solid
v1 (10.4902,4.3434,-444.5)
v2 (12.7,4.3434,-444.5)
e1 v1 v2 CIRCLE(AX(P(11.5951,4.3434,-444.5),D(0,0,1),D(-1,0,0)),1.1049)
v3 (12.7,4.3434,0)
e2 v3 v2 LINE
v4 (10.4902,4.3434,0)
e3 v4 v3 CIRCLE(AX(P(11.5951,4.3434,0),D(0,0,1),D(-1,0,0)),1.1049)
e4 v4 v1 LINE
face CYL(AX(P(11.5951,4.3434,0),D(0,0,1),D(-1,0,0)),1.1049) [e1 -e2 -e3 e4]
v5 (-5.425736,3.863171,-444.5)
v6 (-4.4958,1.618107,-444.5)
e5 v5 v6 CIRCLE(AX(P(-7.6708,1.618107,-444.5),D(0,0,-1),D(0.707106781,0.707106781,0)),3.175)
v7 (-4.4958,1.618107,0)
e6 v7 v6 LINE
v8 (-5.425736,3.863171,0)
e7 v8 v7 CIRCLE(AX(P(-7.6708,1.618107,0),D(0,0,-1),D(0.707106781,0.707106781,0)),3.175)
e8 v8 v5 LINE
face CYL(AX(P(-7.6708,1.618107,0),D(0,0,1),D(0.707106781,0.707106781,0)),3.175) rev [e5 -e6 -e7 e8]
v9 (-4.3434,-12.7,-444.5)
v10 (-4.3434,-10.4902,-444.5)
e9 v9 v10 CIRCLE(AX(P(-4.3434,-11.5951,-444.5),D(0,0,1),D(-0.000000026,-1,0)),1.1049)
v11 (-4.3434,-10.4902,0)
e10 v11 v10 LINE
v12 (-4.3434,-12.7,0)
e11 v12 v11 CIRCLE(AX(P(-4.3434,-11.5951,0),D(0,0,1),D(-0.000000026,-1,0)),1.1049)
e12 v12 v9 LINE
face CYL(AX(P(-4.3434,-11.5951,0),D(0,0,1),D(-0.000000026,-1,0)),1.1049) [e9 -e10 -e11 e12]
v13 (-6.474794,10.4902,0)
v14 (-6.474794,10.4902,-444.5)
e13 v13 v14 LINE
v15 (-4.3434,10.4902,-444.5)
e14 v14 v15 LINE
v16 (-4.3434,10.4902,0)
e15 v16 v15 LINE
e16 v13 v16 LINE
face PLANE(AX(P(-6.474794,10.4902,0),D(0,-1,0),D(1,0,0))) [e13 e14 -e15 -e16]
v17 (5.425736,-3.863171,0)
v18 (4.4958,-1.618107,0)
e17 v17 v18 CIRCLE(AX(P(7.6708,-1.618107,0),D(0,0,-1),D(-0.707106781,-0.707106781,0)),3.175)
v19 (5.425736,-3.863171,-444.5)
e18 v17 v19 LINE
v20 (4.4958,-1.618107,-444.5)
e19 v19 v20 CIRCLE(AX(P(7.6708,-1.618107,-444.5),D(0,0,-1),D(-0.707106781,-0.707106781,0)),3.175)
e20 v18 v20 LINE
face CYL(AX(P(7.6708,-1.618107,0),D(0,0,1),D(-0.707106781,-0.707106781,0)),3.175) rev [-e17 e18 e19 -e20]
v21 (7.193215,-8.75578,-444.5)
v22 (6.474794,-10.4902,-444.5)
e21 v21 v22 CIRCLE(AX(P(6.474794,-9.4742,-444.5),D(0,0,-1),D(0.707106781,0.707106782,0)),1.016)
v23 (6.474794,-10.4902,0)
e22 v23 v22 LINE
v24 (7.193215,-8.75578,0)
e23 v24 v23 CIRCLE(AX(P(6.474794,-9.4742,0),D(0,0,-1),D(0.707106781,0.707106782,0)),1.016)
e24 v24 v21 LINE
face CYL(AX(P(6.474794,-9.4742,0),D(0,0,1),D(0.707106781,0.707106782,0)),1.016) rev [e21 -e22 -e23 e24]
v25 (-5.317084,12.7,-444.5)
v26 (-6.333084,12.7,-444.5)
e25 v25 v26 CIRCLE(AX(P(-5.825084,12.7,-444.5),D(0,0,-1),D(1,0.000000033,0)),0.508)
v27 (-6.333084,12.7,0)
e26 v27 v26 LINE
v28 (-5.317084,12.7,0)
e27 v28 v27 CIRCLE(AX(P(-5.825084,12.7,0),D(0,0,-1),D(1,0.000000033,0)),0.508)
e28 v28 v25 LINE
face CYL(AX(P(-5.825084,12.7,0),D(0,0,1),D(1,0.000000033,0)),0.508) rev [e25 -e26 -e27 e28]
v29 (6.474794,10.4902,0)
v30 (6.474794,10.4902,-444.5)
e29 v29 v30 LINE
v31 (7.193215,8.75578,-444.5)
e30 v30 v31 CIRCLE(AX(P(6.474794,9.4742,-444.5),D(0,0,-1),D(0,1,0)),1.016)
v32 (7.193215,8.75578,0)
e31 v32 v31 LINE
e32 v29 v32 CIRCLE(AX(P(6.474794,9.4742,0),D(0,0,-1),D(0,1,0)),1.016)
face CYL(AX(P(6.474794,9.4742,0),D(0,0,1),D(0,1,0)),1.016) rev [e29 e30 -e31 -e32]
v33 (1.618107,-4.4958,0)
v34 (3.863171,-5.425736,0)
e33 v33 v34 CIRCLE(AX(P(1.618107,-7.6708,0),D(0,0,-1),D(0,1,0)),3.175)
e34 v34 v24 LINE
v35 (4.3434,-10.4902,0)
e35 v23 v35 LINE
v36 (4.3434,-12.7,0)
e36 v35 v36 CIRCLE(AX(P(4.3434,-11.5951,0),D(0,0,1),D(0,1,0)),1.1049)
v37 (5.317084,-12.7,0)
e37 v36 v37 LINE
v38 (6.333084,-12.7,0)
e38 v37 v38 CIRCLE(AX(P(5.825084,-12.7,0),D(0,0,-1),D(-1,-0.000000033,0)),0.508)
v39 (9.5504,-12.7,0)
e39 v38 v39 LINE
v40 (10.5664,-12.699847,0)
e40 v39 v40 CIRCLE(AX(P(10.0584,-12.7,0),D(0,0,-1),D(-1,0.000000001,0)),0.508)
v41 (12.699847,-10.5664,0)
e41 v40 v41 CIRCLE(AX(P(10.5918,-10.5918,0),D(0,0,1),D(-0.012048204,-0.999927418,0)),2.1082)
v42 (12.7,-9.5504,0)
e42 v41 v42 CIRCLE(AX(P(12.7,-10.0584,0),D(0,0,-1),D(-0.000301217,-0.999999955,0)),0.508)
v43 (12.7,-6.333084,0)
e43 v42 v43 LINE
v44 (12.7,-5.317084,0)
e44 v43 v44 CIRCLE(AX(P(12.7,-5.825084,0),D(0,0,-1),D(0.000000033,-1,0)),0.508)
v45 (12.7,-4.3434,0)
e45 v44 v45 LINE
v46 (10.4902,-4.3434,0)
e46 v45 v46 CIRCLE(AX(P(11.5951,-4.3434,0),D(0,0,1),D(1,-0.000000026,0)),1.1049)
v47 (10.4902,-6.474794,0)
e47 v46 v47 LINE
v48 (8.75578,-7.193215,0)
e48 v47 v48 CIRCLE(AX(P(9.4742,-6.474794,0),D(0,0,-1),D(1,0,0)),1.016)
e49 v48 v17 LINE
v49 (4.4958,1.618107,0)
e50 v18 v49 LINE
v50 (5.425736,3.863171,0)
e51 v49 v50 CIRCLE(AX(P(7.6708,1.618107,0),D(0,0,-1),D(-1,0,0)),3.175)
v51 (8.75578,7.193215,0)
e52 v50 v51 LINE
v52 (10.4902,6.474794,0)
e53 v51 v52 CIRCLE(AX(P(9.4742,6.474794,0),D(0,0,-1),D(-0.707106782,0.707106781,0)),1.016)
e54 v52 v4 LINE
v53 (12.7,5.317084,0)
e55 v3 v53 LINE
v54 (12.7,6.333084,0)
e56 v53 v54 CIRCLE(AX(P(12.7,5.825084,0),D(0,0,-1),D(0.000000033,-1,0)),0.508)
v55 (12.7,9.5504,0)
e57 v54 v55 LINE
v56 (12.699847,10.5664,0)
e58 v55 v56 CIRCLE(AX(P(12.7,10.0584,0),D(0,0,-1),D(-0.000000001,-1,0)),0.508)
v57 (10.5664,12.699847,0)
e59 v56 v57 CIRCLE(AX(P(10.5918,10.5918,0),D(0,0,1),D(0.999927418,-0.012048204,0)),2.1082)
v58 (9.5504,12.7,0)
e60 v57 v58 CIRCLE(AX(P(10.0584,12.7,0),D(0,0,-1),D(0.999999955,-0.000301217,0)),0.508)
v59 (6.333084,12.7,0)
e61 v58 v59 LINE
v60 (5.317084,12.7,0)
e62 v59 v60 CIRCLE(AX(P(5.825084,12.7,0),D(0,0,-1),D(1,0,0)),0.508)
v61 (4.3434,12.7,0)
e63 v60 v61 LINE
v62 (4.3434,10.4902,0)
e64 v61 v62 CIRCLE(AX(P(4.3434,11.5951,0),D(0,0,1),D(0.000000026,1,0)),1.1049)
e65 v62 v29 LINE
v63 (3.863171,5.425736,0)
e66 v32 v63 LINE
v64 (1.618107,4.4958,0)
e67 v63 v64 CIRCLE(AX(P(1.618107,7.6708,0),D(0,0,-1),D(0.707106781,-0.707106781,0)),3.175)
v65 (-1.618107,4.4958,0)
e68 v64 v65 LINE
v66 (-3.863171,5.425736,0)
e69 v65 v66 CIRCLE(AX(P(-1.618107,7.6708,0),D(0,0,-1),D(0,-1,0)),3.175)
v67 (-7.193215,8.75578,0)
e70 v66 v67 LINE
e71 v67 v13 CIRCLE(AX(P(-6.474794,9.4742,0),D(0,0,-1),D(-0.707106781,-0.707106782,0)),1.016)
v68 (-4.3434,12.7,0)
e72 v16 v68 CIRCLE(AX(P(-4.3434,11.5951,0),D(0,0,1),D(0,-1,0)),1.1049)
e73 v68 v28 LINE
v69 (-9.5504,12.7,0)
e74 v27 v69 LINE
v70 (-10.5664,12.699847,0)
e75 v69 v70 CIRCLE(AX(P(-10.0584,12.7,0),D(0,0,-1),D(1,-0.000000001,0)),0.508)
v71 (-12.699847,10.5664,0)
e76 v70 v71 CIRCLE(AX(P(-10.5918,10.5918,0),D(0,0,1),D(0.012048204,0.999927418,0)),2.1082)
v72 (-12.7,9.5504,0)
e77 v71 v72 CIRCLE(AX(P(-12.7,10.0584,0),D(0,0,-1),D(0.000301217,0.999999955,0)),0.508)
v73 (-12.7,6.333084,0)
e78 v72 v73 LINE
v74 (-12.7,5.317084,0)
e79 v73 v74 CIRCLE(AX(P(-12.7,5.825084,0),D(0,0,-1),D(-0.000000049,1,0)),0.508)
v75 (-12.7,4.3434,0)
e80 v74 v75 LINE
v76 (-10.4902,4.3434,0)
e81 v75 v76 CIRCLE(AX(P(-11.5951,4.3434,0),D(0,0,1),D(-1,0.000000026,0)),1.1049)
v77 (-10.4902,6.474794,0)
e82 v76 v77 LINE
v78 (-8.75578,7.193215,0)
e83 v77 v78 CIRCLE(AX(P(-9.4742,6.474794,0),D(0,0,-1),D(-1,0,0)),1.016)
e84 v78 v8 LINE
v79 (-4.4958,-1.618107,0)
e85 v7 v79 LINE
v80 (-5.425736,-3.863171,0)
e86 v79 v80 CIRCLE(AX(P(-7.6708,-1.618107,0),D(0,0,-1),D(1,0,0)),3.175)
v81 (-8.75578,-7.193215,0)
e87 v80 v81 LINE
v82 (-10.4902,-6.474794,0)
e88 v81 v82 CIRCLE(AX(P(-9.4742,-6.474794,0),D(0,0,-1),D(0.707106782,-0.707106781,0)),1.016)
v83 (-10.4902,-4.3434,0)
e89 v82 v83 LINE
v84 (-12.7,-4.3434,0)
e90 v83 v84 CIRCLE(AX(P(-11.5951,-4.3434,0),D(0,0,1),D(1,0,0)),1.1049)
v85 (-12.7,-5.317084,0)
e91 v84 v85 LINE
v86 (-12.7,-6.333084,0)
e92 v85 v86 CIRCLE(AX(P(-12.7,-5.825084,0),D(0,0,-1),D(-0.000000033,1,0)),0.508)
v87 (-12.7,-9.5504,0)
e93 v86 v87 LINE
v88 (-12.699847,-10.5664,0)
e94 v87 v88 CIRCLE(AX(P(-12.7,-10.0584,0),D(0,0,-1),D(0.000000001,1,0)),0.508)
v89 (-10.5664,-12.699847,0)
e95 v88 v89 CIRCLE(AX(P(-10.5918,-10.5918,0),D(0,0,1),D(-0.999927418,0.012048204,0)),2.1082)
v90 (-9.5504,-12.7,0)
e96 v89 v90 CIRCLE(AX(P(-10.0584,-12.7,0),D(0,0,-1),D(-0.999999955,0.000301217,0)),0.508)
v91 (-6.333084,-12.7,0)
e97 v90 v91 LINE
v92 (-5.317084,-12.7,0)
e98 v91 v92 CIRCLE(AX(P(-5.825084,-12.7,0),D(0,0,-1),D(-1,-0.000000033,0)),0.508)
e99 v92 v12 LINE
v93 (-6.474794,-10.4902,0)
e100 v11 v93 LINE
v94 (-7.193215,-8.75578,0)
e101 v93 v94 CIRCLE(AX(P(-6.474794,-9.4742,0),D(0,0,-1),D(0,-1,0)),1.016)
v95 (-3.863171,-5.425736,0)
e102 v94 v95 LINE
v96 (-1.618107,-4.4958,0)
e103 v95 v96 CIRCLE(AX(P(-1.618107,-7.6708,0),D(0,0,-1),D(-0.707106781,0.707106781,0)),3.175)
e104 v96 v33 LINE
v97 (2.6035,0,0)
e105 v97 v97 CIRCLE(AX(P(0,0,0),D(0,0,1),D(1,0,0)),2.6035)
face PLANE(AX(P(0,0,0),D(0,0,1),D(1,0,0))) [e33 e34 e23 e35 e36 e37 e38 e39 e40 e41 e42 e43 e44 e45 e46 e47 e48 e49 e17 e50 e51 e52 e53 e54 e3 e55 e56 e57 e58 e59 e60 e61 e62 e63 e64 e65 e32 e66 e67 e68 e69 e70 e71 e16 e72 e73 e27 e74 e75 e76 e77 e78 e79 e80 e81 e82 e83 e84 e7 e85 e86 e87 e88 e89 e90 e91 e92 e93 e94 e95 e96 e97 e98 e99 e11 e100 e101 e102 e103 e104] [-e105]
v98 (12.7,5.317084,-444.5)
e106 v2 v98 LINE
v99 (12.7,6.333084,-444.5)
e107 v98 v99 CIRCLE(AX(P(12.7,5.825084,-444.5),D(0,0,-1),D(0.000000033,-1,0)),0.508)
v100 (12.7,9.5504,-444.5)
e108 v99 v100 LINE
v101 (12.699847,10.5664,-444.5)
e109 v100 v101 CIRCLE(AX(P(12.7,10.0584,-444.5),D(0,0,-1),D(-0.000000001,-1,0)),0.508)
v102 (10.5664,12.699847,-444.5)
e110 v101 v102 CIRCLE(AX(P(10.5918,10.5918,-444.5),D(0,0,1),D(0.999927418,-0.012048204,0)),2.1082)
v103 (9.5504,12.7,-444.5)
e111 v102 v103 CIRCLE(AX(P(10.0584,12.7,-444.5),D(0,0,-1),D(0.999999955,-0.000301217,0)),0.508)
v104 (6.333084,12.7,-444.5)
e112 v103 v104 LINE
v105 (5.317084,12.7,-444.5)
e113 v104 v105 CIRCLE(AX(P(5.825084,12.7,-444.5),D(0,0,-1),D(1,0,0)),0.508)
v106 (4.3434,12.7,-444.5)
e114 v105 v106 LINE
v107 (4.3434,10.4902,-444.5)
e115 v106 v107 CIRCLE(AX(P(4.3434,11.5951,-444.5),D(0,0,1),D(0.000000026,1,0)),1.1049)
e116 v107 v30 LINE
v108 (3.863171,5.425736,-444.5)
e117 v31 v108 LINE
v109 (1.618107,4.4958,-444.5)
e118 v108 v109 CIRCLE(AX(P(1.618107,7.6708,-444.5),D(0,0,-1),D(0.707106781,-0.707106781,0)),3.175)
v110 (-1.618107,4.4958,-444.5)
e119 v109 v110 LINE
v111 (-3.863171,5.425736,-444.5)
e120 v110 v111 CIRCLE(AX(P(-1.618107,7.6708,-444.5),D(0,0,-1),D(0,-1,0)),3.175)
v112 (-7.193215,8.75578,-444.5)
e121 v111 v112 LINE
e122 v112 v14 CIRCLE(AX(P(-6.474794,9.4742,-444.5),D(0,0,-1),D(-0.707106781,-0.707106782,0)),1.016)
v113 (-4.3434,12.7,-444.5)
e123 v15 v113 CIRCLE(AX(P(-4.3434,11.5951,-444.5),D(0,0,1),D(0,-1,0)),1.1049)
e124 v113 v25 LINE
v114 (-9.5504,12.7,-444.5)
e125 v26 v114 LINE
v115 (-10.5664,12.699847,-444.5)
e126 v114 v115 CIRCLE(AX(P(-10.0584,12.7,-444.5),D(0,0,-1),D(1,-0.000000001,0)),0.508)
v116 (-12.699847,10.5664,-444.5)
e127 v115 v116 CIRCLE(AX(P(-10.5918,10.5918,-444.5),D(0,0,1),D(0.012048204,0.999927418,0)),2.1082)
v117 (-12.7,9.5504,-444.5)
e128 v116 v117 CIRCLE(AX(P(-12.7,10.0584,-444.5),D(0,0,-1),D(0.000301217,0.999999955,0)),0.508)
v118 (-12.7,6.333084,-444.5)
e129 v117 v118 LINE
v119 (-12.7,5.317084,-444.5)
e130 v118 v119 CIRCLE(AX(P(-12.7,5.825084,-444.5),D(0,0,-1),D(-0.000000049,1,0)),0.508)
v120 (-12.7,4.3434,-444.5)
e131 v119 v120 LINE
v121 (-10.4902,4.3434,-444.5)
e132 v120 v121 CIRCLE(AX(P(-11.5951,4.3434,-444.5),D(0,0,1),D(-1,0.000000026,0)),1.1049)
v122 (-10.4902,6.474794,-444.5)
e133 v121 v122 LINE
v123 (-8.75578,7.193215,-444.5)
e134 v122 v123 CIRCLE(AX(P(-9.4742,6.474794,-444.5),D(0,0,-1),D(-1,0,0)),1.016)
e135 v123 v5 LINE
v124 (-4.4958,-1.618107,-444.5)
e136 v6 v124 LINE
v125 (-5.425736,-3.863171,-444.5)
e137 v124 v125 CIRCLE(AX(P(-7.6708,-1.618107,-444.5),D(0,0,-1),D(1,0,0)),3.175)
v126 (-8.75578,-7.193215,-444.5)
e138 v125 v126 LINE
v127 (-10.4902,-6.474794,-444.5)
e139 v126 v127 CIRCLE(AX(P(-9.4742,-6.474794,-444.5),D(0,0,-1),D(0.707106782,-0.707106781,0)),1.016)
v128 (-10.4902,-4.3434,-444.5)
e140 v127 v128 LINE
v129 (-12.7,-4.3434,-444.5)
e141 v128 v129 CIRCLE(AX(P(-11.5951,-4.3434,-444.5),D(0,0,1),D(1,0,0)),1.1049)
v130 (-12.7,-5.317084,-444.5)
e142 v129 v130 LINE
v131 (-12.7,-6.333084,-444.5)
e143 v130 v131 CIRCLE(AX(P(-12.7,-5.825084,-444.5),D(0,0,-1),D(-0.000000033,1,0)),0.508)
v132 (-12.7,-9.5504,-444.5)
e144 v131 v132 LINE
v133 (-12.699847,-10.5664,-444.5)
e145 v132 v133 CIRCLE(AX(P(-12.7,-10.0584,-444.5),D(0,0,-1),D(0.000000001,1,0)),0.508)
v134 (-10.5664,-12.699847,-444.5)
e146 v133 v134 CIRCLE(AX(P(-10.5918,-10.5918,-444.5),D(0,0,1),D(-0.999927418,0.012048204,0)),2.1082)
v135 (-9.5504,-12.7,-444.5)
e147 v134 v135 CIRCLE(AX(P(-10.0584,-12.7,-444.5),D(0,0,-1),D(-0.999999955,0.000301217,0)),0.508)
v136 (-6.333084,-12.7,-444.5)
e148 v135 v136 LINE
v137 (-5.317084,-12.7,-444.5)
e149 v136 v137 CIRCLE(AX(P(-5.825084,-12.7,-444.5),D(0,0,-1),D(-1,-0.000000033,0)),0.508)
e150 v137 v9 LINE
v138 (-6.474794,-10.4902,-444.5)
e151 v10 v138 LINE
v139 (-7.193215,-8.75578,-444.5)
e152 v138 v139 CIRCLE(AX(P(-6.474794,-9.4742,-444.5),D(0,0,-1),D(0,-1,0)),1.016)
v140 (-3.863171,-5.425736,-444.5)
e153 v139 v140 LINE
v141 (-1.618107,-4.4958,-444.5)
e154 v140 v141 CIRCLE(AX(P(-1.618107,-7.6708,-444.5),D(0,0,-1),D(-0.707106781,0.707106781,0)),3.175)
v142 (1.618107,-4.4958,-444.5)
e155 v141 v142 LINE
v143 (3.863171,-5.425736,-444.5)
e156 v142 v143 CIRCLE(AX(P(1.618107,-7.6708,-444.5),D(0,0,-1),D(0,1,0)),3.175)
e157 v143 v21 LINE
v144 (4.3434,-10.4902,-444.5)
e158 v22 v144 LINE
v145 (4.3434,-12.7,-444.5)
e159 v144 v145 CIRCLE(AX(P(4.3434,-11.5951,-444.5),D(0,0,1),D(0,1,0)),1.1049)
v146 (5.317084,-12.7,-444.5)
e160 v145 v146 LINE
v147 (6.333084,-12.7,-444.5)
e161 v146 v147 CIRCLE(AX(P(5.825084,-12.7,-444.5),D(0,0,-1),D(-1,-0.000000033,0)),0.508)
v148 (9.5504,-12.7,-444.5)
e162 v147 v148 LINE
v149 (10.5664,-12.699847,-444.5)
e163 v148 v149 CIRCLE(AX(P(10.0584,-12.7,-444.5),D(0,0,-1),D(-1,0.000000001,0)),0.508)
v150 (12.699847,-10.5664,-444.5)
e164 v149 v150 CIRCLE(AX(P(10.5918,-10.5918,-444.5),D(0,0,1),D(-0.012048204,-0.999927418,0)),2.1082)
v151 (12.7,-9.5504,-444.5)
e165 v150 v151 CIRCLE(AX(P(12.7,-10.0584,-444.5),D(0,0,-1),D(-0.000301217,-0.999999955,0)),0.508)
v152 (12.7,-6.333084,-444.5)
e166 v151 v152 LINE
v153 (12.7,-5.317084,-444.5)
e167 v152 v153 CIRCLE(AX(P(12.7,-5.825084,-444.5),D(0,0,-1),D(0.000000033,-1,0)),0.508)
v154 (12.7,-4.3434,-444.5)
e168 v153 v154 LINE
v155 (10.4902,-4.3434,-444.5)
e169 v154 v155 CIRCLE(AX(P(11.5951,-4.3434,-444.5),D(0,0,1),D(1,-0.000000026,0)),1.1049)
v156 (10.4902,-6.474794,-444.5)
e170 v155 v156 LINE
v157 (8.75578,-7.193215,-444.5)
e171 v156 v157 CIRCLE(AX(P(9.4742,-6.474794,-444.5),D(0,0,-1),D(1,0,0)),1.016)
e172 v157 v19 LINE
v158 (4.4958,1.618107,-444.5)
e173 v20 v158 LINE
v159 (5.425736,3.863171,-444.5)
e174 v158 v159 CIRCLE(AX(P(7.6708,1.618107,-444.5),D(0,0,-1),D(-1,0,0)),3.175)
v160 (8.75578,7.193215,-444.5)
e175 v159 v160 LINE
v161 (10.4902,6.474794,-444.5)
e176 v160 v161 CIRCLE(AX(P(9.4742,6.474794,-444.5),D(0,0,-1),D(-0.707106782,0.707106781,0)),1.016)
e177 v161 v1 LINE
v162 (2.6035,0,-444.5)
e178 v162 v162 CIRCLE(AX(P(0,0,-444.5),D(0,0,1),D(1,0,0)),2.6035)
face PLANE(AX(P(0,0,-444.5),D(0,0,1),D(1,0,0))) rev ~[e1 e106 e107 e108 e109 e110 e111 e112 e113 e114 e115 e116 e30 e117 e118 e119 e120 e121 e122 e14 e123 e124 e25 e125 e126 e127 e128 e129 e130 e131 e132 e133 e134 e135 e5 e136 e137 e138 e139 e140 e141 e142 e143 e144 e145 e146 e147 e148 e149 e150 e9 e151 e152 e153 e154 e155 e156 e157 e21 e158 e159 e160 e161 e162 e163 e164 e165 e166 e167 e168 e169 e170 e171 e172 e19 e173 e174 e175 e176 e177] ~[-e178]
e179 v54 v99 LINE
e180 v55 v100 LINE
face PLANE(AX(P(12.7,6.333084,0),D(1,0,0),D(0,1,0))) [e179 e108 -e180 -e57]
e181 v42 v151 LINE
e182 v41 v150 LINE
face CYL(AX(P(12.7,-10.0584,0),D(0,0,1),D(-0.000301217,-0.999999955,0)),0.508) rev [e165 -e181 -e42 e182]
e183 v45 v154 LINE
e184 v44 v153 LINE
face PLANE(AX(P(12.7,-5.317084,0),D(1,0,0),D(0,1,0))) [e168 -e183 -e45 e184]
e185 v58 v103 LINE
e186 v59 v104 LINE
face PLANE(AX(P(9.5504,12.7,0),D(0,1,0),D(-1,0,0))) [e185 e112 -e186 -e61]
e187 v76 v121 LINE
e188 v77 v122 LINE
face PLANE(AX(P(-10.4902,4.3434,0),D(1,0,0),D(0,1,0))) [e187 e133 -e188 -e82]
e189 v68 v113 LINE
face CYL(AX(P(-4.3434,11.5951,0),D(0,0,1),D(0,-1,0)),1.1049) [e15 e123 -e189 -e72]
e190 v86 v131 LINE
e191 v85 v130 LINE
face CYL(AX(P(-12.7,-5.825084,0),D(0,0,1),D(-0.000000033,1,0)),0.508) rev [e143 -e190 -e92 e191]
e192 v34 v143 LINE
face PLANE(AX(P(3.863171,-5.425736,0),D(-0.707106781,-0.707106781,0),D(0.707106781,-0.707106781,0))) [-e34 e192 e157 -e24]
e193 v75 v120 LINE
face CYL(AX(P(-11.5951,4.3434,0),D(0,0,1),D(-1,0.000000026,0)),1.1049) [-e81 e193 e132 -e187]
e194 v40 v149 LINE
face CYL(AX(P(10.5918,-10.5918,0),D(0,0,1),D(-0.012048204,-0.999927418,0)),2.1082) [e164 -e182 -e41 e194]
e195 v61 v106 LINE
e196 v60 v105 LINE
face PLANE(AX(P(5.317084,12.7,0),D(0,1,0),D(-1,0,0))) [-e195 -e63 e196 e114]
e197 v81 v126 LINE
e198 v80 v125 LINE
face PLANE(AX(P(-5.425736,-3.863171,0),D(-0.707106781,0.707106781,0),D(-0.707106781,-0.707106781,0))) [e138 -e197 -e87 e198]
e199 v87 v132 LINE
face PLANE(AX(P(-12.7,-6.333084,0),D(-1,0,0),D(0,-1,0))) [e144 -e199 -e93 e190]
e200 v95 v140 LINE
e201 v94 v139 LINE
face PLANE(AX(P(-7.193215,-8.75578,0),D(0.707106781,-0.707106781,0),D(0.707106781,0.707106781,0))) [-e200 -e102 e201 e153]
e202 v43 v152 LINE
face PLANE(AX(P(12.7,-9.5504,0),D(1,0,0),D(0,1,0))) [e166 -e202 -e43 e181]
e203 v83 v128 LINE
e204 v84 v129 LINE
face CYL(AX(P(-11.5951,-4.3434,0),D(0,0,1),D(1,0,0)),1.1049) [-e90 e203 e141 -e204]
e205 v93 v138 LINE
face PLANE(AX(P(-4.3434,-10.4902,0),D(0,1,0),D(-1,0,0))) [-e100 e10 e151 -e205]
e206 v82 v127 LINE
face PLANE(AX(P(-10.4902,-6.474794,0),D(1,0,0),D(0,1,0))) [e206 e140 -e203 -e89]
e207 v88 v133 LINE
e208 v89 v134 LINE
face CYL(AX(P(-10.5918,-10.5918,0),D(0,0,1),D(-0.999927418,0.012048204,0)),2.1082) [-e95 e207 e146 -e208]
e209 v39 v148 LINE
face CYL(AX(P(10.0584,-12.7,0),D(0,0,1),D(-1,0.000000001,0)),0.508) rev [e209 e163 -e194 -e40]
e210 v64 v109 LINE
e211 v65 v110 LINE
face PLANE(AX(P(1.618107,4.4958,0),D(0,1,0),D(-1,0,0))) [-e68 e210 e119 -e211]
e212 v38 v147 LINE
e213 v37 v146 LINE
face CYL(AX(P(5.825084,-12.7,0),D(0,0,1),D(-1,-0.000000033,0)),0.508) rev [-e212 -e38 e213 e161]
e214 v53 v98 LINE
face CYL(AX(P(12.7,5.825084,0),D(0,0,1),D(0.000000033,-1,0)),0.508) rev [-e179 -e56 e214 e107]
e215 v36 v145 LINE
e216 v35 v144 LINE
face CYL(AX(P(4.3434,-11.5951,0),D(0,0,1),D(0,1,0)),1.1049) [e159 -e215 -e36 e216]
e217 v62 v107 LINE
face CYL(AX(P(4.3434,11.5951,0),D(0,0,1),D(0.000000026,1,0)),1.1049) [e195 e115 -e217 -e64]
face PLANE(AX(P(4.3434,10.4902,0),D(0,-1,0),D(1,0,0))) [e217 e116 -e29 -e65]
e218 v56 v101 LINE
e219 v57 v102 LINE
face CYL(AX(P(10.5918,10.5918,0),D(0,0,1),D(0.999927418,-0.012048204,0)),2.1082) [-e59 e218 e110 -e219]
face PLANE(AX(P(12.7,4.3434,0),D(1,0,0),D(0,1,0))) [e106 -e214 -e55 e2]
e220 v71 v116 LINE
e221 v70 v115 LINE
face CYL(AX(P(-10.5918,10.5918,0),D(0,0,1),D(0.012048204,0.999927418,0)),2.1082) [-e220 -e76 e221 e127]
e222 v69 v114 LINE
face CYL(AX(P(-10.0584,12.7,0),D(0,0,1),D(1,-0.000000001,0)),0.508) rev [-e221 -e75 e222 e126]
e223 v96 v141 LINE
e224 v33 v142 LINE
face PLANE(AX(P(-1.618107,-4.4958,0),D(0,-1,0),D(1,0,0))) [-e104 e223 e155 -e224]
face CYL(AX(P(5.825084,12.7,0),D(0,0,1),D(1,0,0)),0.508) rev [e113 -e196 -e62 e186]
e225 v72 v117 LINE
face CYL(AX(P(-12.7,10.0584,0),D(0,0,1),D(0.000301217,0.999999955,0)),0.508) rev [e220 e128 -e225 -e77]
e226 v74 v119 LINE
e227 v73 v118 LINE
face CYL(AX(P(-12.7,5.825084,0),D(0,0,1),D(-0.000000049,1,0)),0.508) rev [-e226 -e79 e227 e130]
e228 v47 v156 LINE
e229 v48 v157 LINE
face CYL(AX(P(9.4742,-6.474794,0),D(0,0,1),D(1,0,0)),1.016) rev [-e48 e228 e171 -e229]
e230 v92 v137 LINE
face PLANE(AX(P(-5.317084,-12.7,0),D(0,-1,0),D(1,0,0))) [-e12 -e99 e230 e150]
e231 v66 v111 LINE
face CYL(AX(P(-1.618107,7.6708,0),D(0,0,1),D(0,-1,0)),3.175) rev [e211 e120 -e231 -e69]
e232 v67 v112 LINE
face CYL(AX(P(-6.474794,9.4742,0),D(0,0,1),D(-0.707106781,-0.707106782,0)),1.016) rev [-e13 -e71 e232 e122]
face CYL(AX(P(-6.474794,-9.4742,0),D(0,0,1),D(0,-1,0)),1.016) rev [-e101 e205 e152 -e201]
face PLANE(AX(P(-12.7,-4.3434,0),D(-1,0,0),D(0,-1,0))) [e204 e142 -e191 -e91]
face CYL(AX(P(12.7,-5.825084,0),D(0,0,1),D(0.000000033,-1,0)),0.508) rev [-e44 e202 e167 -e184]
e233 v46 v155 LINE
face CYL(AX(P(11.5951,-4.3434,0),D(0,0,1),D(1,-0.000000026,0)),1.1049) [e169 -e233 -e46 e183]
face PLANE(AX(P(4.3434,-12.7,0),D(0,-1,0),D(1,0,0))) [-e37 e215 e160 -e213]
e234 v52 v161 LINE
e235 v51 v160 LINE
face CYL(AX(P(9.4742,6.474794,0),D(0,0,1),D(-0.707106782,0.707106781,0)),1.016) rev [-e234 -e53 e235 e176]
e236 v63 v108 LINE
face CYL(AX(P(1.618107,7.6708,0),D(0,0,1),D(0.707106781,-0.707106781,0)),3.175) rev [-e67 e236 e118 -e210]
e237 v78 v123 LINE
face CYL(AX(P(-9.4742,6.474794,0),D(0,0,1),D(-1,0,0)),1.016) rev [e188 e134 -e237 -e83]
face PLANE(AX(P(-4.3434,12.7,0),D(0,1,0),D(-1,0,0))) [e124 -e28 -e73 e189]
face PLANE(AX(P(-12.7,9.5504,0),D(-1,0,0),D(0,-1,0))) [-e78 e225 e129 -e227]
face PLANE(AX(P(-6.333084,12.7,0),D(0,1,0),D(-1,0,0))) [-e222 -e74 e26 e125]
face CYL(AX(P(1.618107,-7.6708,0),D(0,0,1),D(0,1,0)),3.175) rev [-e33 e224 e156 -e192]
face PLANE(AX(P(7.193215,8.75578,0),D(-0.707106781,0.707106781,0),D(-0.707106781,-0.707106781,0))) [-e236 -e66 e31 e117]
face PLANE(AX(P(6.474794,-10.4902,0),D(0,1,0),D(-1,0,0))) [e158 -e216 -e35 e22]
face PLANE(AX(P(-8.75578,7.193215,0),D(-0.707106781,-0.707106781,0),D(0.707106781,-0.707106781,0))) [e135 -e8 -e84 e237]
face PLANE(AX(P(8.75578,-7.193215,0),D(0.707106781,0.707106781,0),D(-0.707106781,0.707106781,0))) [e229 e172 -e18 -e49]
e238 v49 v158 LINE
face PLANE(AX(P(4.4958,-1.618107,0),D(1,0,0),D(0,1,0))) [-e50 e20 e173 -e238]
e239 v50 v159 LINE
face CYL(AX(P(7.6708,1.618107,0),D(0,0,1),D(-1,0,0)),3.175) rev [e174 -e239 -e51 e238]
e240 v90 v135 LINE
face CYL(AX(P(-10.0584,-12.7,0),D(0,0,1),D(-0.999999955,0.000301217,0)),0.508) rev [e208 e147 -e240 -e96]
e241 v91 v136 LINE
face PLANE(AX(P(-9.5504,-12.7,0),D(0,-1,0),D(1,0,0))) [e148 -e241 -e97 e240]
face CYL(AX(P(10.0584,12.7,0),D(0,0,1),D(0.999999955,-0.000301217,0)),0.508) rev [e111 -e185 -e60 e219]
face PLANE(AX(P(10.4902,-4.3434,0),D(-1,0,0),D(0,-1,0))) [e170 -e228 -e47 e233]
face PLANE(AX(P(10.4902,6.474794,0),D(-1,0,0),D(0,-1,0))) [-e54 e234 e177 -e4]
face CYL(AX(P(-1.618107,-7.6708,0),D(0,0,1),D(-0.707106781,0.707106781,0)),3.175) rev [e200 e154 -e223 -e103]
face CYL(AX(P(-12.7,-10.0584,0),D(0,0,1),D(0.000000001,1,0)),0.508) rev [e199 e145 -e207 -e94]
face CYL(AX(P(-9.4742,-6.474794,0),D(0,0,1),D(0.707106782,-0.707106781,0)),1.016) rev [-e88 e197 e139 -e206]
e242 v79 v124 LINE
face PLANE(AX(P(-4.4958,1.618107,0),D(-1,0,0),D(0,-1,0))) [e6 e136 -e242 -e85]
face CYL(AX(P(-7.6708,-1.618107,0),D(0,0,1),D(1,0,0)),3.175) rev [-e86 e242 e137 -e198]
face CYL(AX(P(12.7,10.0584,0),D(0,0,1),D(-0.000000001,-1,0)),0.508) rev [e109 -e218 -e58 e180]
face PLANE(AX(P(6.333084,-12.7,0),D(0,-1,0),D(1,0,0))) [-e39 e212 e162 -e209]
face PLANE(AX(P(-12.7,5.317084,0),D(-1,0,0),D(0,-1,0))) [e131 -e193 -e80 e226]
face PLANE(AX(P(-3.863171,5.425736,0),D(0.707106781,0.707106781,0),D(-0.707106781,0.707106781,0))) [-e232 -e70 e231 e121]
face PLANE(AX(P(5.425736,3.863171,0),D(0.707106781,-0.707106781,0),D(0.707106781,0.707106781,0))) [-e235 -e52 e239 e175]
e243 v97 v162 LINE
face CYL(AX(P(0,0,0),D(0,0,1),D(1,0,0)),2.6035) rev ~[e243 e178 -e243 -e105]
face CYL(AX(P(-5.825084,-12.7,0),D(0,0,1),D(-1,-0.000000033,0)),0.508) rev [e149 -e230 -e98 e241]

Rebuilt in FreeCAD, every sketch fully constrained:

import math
import FreeCAD as App
import Part
import Sketcher
from FreeCAD import Vector
Q = App.Units.Quantity

doc = App.newDocument("Part")
params = doc.addObject("Spreadsheet::Sheet", "Params")
for row, (alias, value) in enumerate([
    ("sketch1_radius", "0.02 in"),
    ("sketch1_radius2", "0.04 in"),
    ("sketch1_diameter", "0.205 in"),
    ("sketch1_radius3", "0.125 in"),
    ("sketch1_radius4", "0.083 in"),
    ("pad1_length", "17.5 in"),
], start=1):
    params.set(f"A{row}", alias)
    params.set(f"B{row}", "=" + value)
    params.setAlias(f"B{row}", alias)

body = doc.addObject("PartDesign::Body", "Body")

# Sketch on XY plane
sketch1 = body.newObject("Sketcher::SketchObject", "Sketch")
sketch1.AttachmentSupport = (doc.getObject("XY_Plane"), [""])
sketch1.MapMode = "FlatFace"
sketch1.addGeometry([
    Part.LineSegment(Vector(-12.7, 9.6, 0), Vector(-12.7, 6.3, 0)),  # 0
    Part.ArcOfCircle(Part.Circle(Vector(-12.7, 5.8, 0), Vector(0, 0, 1), 0.5), math.radians(-90), math.radians(90)),  # 1
    Part.LineSegment(Vector(-12.7, 5.3, 0), Vector(-12.7, 4.3, 0)),  # 2
    Part.ArcOfCircle(Part.Circle(Vector(-11.6, 4.3, 0), Vector(0, 0, 1), 1.1), math.radians(180), math.radians(360)),  # 3
    Part.LineSegment(Vector(-10.5, 4.3, 0), Vector(-10.5, 6.5, 0)),  # 4
    Part.ArcOfCircle(Part.Circle(Vector(-9.5, 6.5, 0), Vector(0, 0, 1), 1), math.radians(45), math.radians(180)),  # 5
    Part.LineSegment(Vector(-8.8, 7.2, 0), Vector(-5.4, 3.9, 0)),  # 6
    Part.ArcOfCircle(Part.Circle(Vector(-7.7, 1.6, 0), Vector(0, 0, 1), 3.2), math.radians(0), math.radians(45)),  # 7
    Part.LineSegment(Vector(-4.5, 1.6, 0), Vector(-4.5, -1.6, 0)),  # 8
    Part.ArcOfCircle(Part.Circle(Vector(-7.7, -1.6, 0), Vector(0, 0, 1), 3.2), math.radians(-45), math.radians(0)),  # 9
    Part.LineSegment(Vector(-5.4, -3.9, 0), Vector(-8.8, -7.2, 0)),  # 10
    Part.ArcOfCircle(Part.Circle(Vector(-9.5, -6.5, 0), Vector(0, 0, 1), 1), math.radians(180), math.radians(315)),  # 11
    Part.LineSegment(Vector(-10.5, -6.5, 0), Vector(-10.5, -4.3, 0)),  # 12
    Part.ArcOfCircle(Part.Circle(Vector(-11.6, -4.3, 0), Vector(0, 0, 1), 1.1), math.radians(0), math.radians(180)),  # 13
    Part.LineSegment(Vector(-12.7, -4.3, 0), Vector(-12.7, -5.3, 0)),  # 14
    Part.ArcOfCircle(Part.Circle(Vector(-12.7, -5.8, 0), Vector(0, 0, 1), 0.5), math.radians(-90), math.radians(90)),  # 15
    Part.LineSegment(Vector(-12.7, -6.3, 0), Vector(-12.7, -9.6, 0)),  # 16
    Part.ArcOfCircle(Part.Circle(Vector(-12.7, -10.1, 0), Vector(0, 0, 1), 0.5), math.radians(-90), math.radians(90)),  # 17
    Part.ArcOfCircle(Part.Circle(Vector(-10.6, -10.6, 0), Vector(0, 0, 1), 2.1), math.radians(179), math.radians(271)),  # 18
    Part.ArcOfCircle(Part.Circle(Vector(-10.1, -12.7, 0), Vector(0, 0, 1), 0.5), math.radians(0), math.radians(180)),  # 19
    Part.LineSegment(Vector(-9.6, -12.7, 0), Vector(-6.3, -12.7, 0)),  # 20
    Part.ArcOfCircle(Part.Circle(Vector(-5.8, -12.7, 0), Vector(0, 0, 1), 0.5), math.radians(0), math.radians(180)),  # 21
    Part.LineSegment(Vector(-5.3, -12.7, 0), Vector(-4.3, -12.7, 0)),  # 22
    Part.ArcOfCircle(Part.Circle(Vector(-4.3, -11.6, 0), Vector(0, 0, 1), 1.1), math.radians(-90), math.radians(90)),  # 23
    Part.LineSegment(Vector(-4.3, -10.5, 0), Vector(-6.5, -10.5, 0)),  # 24
    Part.ArcOfCircle(Part.Circle(Vector(-6.5, -9.5, 0), Vector(0, 0, 1), 1), math.radians(135), math.radians(270)),  # 25
    Part.LineSegment(Vector(-7.2, -8.8, 0), Vector(-3.9, -5.4, 0)),  # 26
    Part.ArcOfCircle(Part.Circle(Vector(-1.6, -7.7, 0), Vector(0, 0, 1), 3.2), math.radians(90), math.radians(135)),  # 27
    Part.LineSegment(Vector(-1.6, -4.5, 0), Vector(1.6, -4.5, 0)),  # 28
    Part.ArcOfCircle(Part.Circle(Vector(1.6, -7.7, 0), Vector(0, 0, 1), 3.2), math.radians(45), math.radians(90)),  # 29
    Part.LineSegment(Vector(3.9, -5.4, 0), Vector(7.2, -8.8, 0)),  # 30
    Part.ArcOfCircle(Part.Circle(Vector(6.5, -9.5, 0), Vector(0, 0, 1), 1), math.radians(-90), math.radians(45)),  # 31
    Part.LineSegment(Vector(6.5, -10.5, 0), Vector(4.3, -10.5, 0)),  # 32
    Part.ArcOfCircle(Part.Circle(Vector(4.3, -11.6, 0), Vector(0, 0, 1), 1.1), math.radians(90), math.radians(270)),  # 33
    Part.LineSegment(Vector(4.3, -12.7, 0), Vector(5.3, -12.7, 0)),  # 34
    Part.ArcOfCircle(Part.Circle(Vector(5.8, -12.7, 0), Vector(0, 0, 1), 0.5), math.radians(0), math.radians(180)),  # 35
    Part.LineSegment(Vector(6.3, -12.7, 0), Vector(9.6, -12.7, 0)),  # 36
    Part.ArcOfCircle(Part.Circle(Vector(10.1, -12.7, 0), Vector(0, 0, 1), 0.5), math.radians(0), math.radians(180)),  # 37
    Part.ArcOfCircle(Part.Circle(Vector(10.6, -10.6, 0), Vector(0, 0, 1), 2.1), math.radians(-91), math.radians(1)),  # 38
    Part.ArcOfCircle(Part.Circle(Vector(12.7, -10.1, 0), Vector(0, 0, 1), 0.5), math.radians(90), math.radians(270)),  # 39
    Part.LineSegment(Vector(12.7, -9.6, 0), Vector(12.7, -6.3, 0)),  # 40
    Part.ArcOfCircle(Part.Circle(Vector(12.7, -5.8, 0), Vector(0, 0, 1), 0.5), math.radians(90), math.radians(270)),  # 41
    Part.LineSegment(Vector(12.7, -5.3, 0), Vector(12.7, -4.3, 0)),  # 42
    Part.ArcOfCircle(Part.Circle(Vector(11.6, -4.3, 0), Vector(0, 0, 1), 1.1), math.radians(0), math.radians(180)),  # 43
    Part.LineSegment(Vector(10.5, -4.3, 0), Vector(10.5, -6.5, 0)),  # 44
    Part.ArcOfCircle(Part.Circle(Vector(9.5, -6.5, 0), Vector(0, 0, 1), 1), math.radians(-135), math.radians(0)),  # 45
    Part.LineSegment(Vector(8.8, -7.2, 0), Vector(5.4, -3.9, 0)),  # 46
    Part.ArcOfCircle(Part.Circle(Vector(7.7, -1.6, 0), Vector(0, 0, 1), 3.2), math.radians(180), math.radians(225)),  # 47
    Part.LineSegment(Vector(4.5, -1.6, 0), Vector(4.5, 1.6, 0)),  # 48
    Part.ArcOfCircle(Part.Circle(Vector(7.7, 1.6, 0), Vector(0, 0, 1), 3.2), math.radians(135), math.radians(180)),  # 49
    Part.LineSegment(Vector(5.4, 3.9, 0), Vector(8.8, 7.2, 0)),  # 50
    Part.ArcOfCircle(Part.Circle(Vector(9.5, 6.5, 0), Vector(0, 0, 1), 1), math.radians(0), math.radians(135)),  # 51
    Part.LineSegment(Vector(10.5, 6.5, 0), Vector(10.5, 4.3, 0)),  # 52
    Part.ArcOfCircle(Part.Circle(Vector(11.6, 4.3, 0), Vector(0, 0, 1), 1.1), math.radians(180), math.radians(360)),  # 53
    Part.LineSegment(Vector(12.7, 4.3, 0), Vector(12.7, 5.3, 0)),  # 54
    Part.ArcOfCircle(Part.Circle(Vector(12.7, 5.8, 0), Vector(0, 0, 1), 0.5), math.radians(90), math.radians(270)),  # 55
    Part.LineSegment(Vector(12.7, 6.3, 0), Vector(12.7, 9.6, 0)),  # 56
    Part.ArcOfCircle(Part.Circle(Vector(12.7, 10.1, 0), Vector(0, 0, 1), 0.5), math.radians(90), math.radians(270)),  # 57
    Part.ArcOfCircle(Part.Circle(Vector(10.6, 10.6, 0), Vector(0, 0, 1), 2.1), math.radians(-1), math.radians(91)),  # 58
    Part.ArcOfCircle(Part.Circle(Vector(10.1, 12.7, 0), Vector(0, 0, 1), 0.5), math.radians(180), math.radians(360)),  # 59
    Part.LineSegment(Vector(9.6, 12.7, 0), Vector(6.3, 12.7, 0)),  # 60
    Part.ArcOfCircle(Part.Circle(Vector(5.8, 12.7, 0), Vector(0, 0, 1), 0.5), math.radians(180), math.radians(360)),  # 61
    Part.LineSegment(Vector(5.3, 12.7, 0), Vector(4.3, 12.7, 0)),  # 62
    Part.ArcOfCircle(Part.Circle(Vector(4.3, 11.6, 0), Vector(0, 0, 1), 1.1), math.radians(90), math.radians(270)),  # 63
    Part.LineSegment(Vector(4.3, 10.5, 0), Vector(6.5, 10.5, 0)),  # 64
    Part.ArcOfCircle(Part.Circle(Vector(6.5, 9.5, 0), Vector(0, 0, 1), 1), math.radians(-45), math.radians(90)),  # 65
    Part.LineSegment(Vector(7.2, 8.8, 0), Vector(3.9, 5.4, 0)),  # 66
    Part.ArcOfCircle(Part.Circle(Vector(1.6, 7.7, 0), Vector(0, 0, 1), 3.2), math.radians(-90), math.radians(-45)),  # 67
    Part.LineSegment(Vector(1.6, 4.5, 0), Vector(-1.6, 4.5, 0)),  # 68
    Part.ArcOfCircle(Part.Circle(Vector(-1.6, 7.7, 0), Vector(0, 0, 1), 3.2), math.radians(-135), math.radians(-90)),  # 69
    Part.LineSegment(Vector(-3.9, 5.4, 0), Vector(-7.2, 8.8, 0)),  # 70
    Part.ArcOfCircle(Part.Circle(Vector(-6.5, 9.5, 0), Vector(0, 0, 1), 1), math.radians(90), math.radians(225)),  # 71
    Part.LineSegment(Vector(-6.5, 10.5, 0), Vector(-4.3, 10.5, 0)),  # 72
    Part.ArcOfCircle(Part.Circle(Vector(-4.3, 11.6, 0), Vector(0, 0, 1), 1.1), math.radians(-90), math.radians(90)),  # 73
    Part.LineSegment(Vector(-4.3, 12.7, 0), Vector(-5.3, 12.7, 0)),  # 74
    Part.ArcOfCircle(Part.Circle(Vector(-5.8, 12.7, 0), Vector(0, 0, 1), 0.5), math.radians(180), math.radians(360)),  # 75
    Part.LineSegment(Vector(-6.3, 12.7, 0), Vector(-9.6, 12.7, 0)),  # 76
    Part.ArcOfCircle(Part.Circle(Vector(-10.1, 12.7, 0), Vector(0, 0, 1), 0.5), math.radians(-180), math.radians(0)),  # 77
    Part.ArcOfCircle(Part.Circle(Vector(-10.6, 10.6, 0), Vector(0, 0, 1), 2.1), math.radians(89), math.radians(181)),  # 78
    Part.ArcOfCircle(Part.Circle(Vector(-12.7, 10.1, 0), Vector(0, 0, 1), 0.5), math.radians(-90), math.radians(90)),  # 79
    Part.Circle(Vector(0, 0, 0), Vector(0, 0, 1), 2.6),  # 80
], False)
sketch1.addConstraint([
    Sketcher.Constraint("Coincident", 0, 2, 1, 2),
    Sketcher.Constraint("Coincident", 1, 1, 2, 1),
    Sketcher.Constraint("Tangent", 2, 2, 3, 1),
    Sketcher.Constraint("Tangent", 3, 2, 4, 1),
    Sketcher.Constraint("Tangent", 4, 2, 5, 2),
    Sketcher.Constraint("Tangent", 5, 1, 6, 1),
    Sketcher.Constraint("Tangent", 6, 2, 7, 2),
    Sketcher.Constraint("Tangent", 7, 1, 8, 1),
    Sketcher.Constraint("Tangent", 8, 2, 9, 2),
    Sketcher.Constraint("Tangent", 9, 1, 10, 1),
    Sketcher.Constraint("Tangent", 10, 2, 11, 2),
    Sketcher.Constraint("Tangent", 11, 1, 12, 1),
    Sketcher.Constraint("Tangent", 12, 2, 13, 1),
    Sketcher.Constraint("Tangent", 13, 2, 14, 1),
    Sketcher.Constraint("Coincident", 14, 2, 15, 2),
    Sketcher.Constraint("Coincident", 15, 1, 16, 1),
    Sketcher.Constraint("Coincident", 16, 2, 17, 2),
    Sketcher.Constraint("Coincident", 17, 1, 18, 1),
    Sketcher.Constraint("Coincident", 18, 2, 19, 2),
    Sketcher.Constraint("Coincident", 19, 1, 20, 1),
    Sketcher.Constraint("Coincident", 20, 2, 21, 2),
    Sketcher.Constraint("Coincident", 21, 1, 22, 1),
    Sketcher.Constraint("Tangent", 22, 2, 23, 1),
    Sketcher.Constraint("Tangent", 23, 2, 24, 1),
    Sketcher.Constraint("Tangent", 24, 2, 25, 2),
    Sketcher.Constraint("Tangent", 25, 1, 26, 1),
    Sketcher.Constraint("Tangent", 26, 2, 27, 2),
    Sketcher.Constraint("Tangent", 27, 1, 28, 1),
    Sketcher.Constraint("Tangent", 28, 2, 29, 2),
    Sketcher.Constraint("Tangent", 29, 1, 30, 1),
    Sketcher.Constraint("Tangent", 30, 2, 31, 2),
    Sketcher.Constraint("Tangent", 31, 1, 32, 1),
    Sketcher.Constraint("Tangent", 32, 2, 33, 1),
    Sketcher.Constraint("Tangent", 33, 2, 34, 1),
    Sketcher.Constraint("Coincident", 34, 2, 35, 2),
    Sketcher.Constraint("Coincident", 35, 1, 36, 1),
    Sketcher.Constraint("Coincident", 36, 2, 37, 2),
    Sketcher.Constraint("Coincident", 37, 1, 38, 1),
    Sketcher.Constraint("Coincident", 38, 2, 39, 2),
    Sketcher.Constraint("Coincident", 39, 1, 40, 1),
    Sketcher.Constraint("Coincident", 40, 2, 41, 2),
    Sketcher.Constraint("Coincident", 41, 1, 42, 1),
    Sketcher.Constraint("Tangent", 42, 2, 43, 1),
    Sketcher.Constraint("Tangent", 43, 2, 44, 1),
    Sketcher.Constraint("Tangent", 44, 2, 45, 2),
    Sketcher.Constraint("Tangent", 45, 1, 46, 1),
    Sketcher.Constraint("Tangent", 46, 2, 47, 2),
    Sketcher.Constraint("Tangent", 47, 1, 48, 1),
    Sketcher.Constraint("Tangent", 48, 2, 49, 2),
    Sketcher.Constraint("Tangent", 49, 1, 50, 1),
    Sketcher.Constraint("Tangent", 50, 2, 51, 2),
    Sketcher.Constraint("Tangent", 51, 1, 52, 1),
    Sketcher.Constraint("Tangent", 52, 2, 53, 1),
    Sketcher.Constraint("Tangent", 53, 2, 54, 1),
    Sketcher.Constraint("Coincident", 54, 2, 55, 2),
    Sketcher.Constraint("Coincident", 55, 1, 56, 1),
    Sketcher.Constraint("Coincident", 56, 2, 57, 2),
    Sketcher.Constraint("Coincident", 57, 1, 58, 1),
    Sketcher.Constraint("Coincident", 58, 2, 59, 2),
    Sketcher.Constraint("Coincident", 59, 1, 60, 1),
    Sketcher.Constraint("Coincident", 60, 2, 61, 2),
    Sketcher.Constraint("Coincident", 61, 1, 62, 1),
    Sketcher.Constraint("Tangent", 62, 2, 63, 1),
    Sketcher.Constraint("Tangent", 63, 2, 64, 1),
    Sketcher.Constraint("Tangent", 64, 2, 65, 2),
    Sketcher.Constraint("Tangent", 65, 1, 66, 1),
    Sketcher.Constraint("Tangent", 66, 2, 67, 2),
    Sketcher.Constraint("Tangent", 67, 1, 68, 1),
    Sketcher.Constraint("Tangent", 68, 2, 69, 2),
    Sketcher.Constraint("Tangent", 69, 1, 70, 1),
    Sketcher.Constraint("Tangent", 70, 2, 71, 2),
    Sketcher.Constraint("Tangent", 71, 1, 72, 1),
    Sketcher.Constraint("Tangent", 72, 2, 73, 1),
    Sketcher.Constraint("Tangent", 73, 2, 74, 1),
    Sketcher.Constraint("Coincident", 74, 2, 75, 2),
    Sketcher.Constraint("Coincident", 75, 1, 76, 1),
    Sketcher.Constraint("Coincident", 76, 2, 77, 2),
    Sketcher.Constraint("Coincident", 77, 1, 78, 1),
    Sketcher.Constraint("Coincident", 78, 2, 79, 2),
    Sketcher.Constraint("Coincident", 79, 1, 0, 1),
    Sketcher.Constraint("Vertical", 0),
    Sketcher.Constraint("Vertical", 2),
    Sketcher.Constraint("Vertical", 4),
    Sketcher.Constraint("Vertical", 8),
    Sketcher.Constraint("Vertical", 12),
    Sketcher.Constraint("Vertical", 14),
    Sketcher.Constraint("Vertical", 16),
    Sketcher.Constraint("Horizontal", 20),
    Sketcher.Constraint("Horizontal", 22),
    Sketcher.Constraint("Horizontal", 24),
    Sketcher.Constraint("Horizontal", 28),
    Sketcher.Constraint("Horizontal", 32),
    Sketcher.Constraint("Horizontal", 34),
    Sketcher.Constraint("Horizontal", 36),
    Sketcher.Constraint("Vertical", 40),
    Sketcher.Constraint("Vertical", 42),
    Sketcher.Constraint("Vertical", 44),
    Sketcher.Constraint("Vertical", 48),
    Sketcher.Constraint("Vertical", 52),
    Sketcher.Constraint("Vertical", 54),
    Sketcher.Constraint("Vertical", 56),
    Sketcher.Constraint("Horizontal", 60),
    Sketcher.Constraint("Horizontal", 62),
    Sketcher.Constraint("Horizontal", 64),
    Sketcher.Constraint("Horizontal", 68),
    Sketcher.Constraint("Horizontal", 72),
    Sketcher.Constraint("Horizontal", 74),
    Sketcher.Constraint("Horizontal", 76),
    Sketcher.Constraint("Coincident", 80, 3, -1, 1),
    Sketcher.Constraint("Equal", 7, 9),
    Sketcher.Constraint("Equal", 5, 11),
    Sketcher.Constraint("Equal", 3, 13),
    Sketcher.Constraint("Equal", 1, 15),
    Sketcher.Constraint("Equal", 15, 17),
    Sketcher.Constraint("Equal", 17, 19),
    Sketcher.Constraint("Equal", 19, 21),
    Sketcher.Constraint("Equal", 13, 23),
    Sketcher.Constraint("Equal", 11, 25),
    Sketcher.Constraint("Equal", 9, 27),
    Sketcher.Constraint("Equal", 27, 29),
    Sketcher.Constraint("Equal", 25, 31),
    Sketcher.Constraint("Equal", 23, 33),
    Sketcher.Constraint("Equal", 21, 35),
    Sketcher.Constraint("Equal", 35, 37),
    Sketcher.Constraint("Equal", 18, 38),
    Sketcher.Constraint("Equal", 37, 39),
    Sketcher.Constraint("Equal", 39, 41),
    Sketcher.Constraint("Equal", 33, 43),
    Sketcher.Constraint("Equal", 31, 45),
    Sketcher.Constraint("Equal", 29, 47),
    Sketcher.Constraint("Equal", 47, 49),
    Sketcher.Constraint("Equal", 45, 51),
    Sketcher.Constraint("Equal", 43, 53),
    Sketcher.Constraint("Equal", 41, 55),
    Sketcher.Constraint("Equal", 55, 57),
    Sketcher.Constraint("Equal", 38, 58),
    Sketcher.Constraint("Equal", 57, 59),
    Sketcher.Constraint("Equal", 59, 61),
    Sketcher.Constraint("Equal", 53, 63),
    Sketcher.Constraint("Equal", 51, 65),
    Sketcher.Constraint("Equal", 49, 67),
    Sketcher.Constraint("Equal", 67, 69),
    Sketcher.Constraint("Equal", 65, 71),
    Sketcher.Constraint("Equal", 63, 73),
    Sketcher.Constraint("Equal", 61, 75),
    Sketcher.Constraint("Equal", 75, 77),
    Sketcher.Constraint("Equal", 58, 78),
    Sketcher.Constraint("Equal", 77, 79),
    Sketcher.Constraint("Symmetric", 1, 3, 41, 3, -1, 1),
    Sketcher.Constraint("Symmetric", 3, 3, 43, 3, -1, 1),
    Sketcher.Constraint("Symmetric", 7, 3, 47, 3, -1, 1),
    Sketcher.Constraint("Symmetric", 11, 3, 51, 3, -1, 1),
    Sketcher.Constraint("Symmetric", 15, 3, 55, 3, -1, 1),
    Sketcher.Constraint("Symmetric", 17, 3, 57, 3, -1, 1),
    Sketcher.Constraint("Symmetric", 18, 3, 58, 3, -1, 1),
    Sketcher.Constraint("Symmetric", 19, 3, 59, 3, -1, 1),
    Sketcher.Constraint("Symmetric", 21, 3, 61, 3, -1, 1),
    Sketcher.Constraint("Symmetric", 23, 3, 63, 3, -1, 1),
    Sketcher.Constraint("Symmetric", 27, 3, 67, 3, -1, 1),
    Sketcher.Constraint("Symmetric", 31, 3, 71, 3, -1, 1),
    Sketcher.Constraint("Symmetric", 35, 3, 75, 3, -1, 1),
    Sketcher.Constraint("Symmetric", 37, 3, 77, 3, -1, 1),
    Sketcher.Constraint("Symmetric", 38, 3, 78, 3, -1, 1),
    Sketcher.Constraint("Symmetric", 39, 3, 79, 3, -1, 1),
    Sketcher.Constraint("Symmetric", 25, 3, 31, 3, -2),
    Sketcher.Constraint("Symmetric", 21, 3, 35, 3, -2),
    Sketcher.Constraint("Symmetric", 19, 3, 37, 3, -2),
    Sketcher.Constraint("Symmetric", 18, 3, 38, 3, -2),
    Sketcher.Constraint("Symmetric", 17, 3, 39, 3, -2),
    Sketcher.Constraint("Symmetric", 15, 3, 41, 3, -2),
    Sketcher.Constraint("Symmetric", 13, 3, 43, 3, -2),
    Sketcher.Constraint("Symmetric", 10, 2, 45, 1, -2),
    Sketcher.Constraint("Symmetric", 6, 2, 49, 1, -2),
    Sketcher.Constraint("Symmetric", 66, 2, 69, 1, -2),
    Sketcher.Constraint("Perpendicular", 6, 10),
    Sketcher.Constraint("Parallel", 10, 26),
    Sketcher.Constraint("Perpendicular", 26, 30),
    Sketcher.Constraint("Horizontal", 19, 3, 21, 3),
    Sketcher.Constraint("Horizontal", 3, 3, 53, 3),
    Sketcher.Constraint("Horizontal", 37, 3, 19, 1),
    Sketcher.Constraint("Horizontal", 20, 2, 21, 1),
    Sketcher.Constraint("Horizontal", 34, 2, 35, 1),
    Sketcher.Constraint("Horizontal", 77, 3, 59, 1),
    Sketcher.Constraint("Horizontal", 74, 2, 75, 1),
    Sketcher.Constraint("Vertical", 15, 3, 17, 3),
    Sketcher.Constraint("Vertical", 33, 3, 63, 3),
    Sketcher.Constraint("Vertical", 23, 3, 73, 3),
    Sketcher.Constraint("Vertical", 79, 3, 0, 2),
    Sketcher.Constraint("Vertical", 0, 2, 1, 1),
    Sketcher.Constraint("Vertical", 14, 2, 15, 1),
    Sketcher.Constraint("Vertical", 57, 3, 39, 1),
    Sketcher.Constraint("Vertical", 54, 2, 55, 1),
    Sketcher.Constraint("Equal", 76, 0),
    Sketcher.Constraint("Equal", 74, 2),
    Sketcher.Constraint("Equal", 72, 4),
    Sketcher.Constraint("Equal", 68, 8),
    Sketcher.Constraint("Equal", 10, 26),
    Sketcher.Constraint("Radius", 1, Q("0.02 in")),
    Sketcher.Constraint("Radius", 5, Q("0.04 in")),
    Sketcher.Constraint("Diameter", 80, Q("0.205 in")),
    Sketcher.Constraint("Radius", 7, Q("0.125 in")),
    Sketcher.Constraint("Radius", 18, Q("0.083 in")),
    Sketcher.Constraint("DistanceX", 1, 3, -1, 1, Q("0.5 in")),
    Sketcher.Constraint("DistanceY", 19, 3, -1, 1, Q("0.5 in")),
    Sketcher.Constraint("Radius", 3, Q("0.0435 in")),
    Sketcher.Constraint("DistanceY", -1, 1, 3, 3, Q("0.171 in")),
    Sketcher.Constraint("DistanceX", 7, 3, -1, 1, Q("0.302 in")),
    Sketcher.Constraint("DistanceY", 17, 3, -1, 1, Q("0.396 in")),
    Sketcher.Constraint("DistanceX", 18, 3, -1, 1, Q("0.417 in")),
    Sketcher.Constraint("DistanceY", 18, 3, -1, 1, Q("0.417 in")),
    Sketcher.Constraint("DistanceX", 20, 1, 20, 2, Q("3.217316 mm")),
    Sketcher.Constraint("DistanceX", 24, 2, 24, 1, Q("2.131394 mm")),
])
sketch1.setExpression("Constraints[197]", "Params.sketch1_radius")
sketch1.setExpression("Constraints[198]", "Params.sketch1_radius2")
sketch1.setExpression("Constraints[199]", "Params.sketch1_diameter")
sketch1.setExpression("Constraints[200]", "Params.sketch1_radius3")
sketch1.setExpression("Constraints[201]", "Params.sketch1_radius4")
pad1 = body.newObject("PartDesign::Pad", "Pad")
pad1.Profile = sketch1
pad1.setExpression("Length", "Params.pad1_length")
pad1.Reversed = True

doc.recompute()
